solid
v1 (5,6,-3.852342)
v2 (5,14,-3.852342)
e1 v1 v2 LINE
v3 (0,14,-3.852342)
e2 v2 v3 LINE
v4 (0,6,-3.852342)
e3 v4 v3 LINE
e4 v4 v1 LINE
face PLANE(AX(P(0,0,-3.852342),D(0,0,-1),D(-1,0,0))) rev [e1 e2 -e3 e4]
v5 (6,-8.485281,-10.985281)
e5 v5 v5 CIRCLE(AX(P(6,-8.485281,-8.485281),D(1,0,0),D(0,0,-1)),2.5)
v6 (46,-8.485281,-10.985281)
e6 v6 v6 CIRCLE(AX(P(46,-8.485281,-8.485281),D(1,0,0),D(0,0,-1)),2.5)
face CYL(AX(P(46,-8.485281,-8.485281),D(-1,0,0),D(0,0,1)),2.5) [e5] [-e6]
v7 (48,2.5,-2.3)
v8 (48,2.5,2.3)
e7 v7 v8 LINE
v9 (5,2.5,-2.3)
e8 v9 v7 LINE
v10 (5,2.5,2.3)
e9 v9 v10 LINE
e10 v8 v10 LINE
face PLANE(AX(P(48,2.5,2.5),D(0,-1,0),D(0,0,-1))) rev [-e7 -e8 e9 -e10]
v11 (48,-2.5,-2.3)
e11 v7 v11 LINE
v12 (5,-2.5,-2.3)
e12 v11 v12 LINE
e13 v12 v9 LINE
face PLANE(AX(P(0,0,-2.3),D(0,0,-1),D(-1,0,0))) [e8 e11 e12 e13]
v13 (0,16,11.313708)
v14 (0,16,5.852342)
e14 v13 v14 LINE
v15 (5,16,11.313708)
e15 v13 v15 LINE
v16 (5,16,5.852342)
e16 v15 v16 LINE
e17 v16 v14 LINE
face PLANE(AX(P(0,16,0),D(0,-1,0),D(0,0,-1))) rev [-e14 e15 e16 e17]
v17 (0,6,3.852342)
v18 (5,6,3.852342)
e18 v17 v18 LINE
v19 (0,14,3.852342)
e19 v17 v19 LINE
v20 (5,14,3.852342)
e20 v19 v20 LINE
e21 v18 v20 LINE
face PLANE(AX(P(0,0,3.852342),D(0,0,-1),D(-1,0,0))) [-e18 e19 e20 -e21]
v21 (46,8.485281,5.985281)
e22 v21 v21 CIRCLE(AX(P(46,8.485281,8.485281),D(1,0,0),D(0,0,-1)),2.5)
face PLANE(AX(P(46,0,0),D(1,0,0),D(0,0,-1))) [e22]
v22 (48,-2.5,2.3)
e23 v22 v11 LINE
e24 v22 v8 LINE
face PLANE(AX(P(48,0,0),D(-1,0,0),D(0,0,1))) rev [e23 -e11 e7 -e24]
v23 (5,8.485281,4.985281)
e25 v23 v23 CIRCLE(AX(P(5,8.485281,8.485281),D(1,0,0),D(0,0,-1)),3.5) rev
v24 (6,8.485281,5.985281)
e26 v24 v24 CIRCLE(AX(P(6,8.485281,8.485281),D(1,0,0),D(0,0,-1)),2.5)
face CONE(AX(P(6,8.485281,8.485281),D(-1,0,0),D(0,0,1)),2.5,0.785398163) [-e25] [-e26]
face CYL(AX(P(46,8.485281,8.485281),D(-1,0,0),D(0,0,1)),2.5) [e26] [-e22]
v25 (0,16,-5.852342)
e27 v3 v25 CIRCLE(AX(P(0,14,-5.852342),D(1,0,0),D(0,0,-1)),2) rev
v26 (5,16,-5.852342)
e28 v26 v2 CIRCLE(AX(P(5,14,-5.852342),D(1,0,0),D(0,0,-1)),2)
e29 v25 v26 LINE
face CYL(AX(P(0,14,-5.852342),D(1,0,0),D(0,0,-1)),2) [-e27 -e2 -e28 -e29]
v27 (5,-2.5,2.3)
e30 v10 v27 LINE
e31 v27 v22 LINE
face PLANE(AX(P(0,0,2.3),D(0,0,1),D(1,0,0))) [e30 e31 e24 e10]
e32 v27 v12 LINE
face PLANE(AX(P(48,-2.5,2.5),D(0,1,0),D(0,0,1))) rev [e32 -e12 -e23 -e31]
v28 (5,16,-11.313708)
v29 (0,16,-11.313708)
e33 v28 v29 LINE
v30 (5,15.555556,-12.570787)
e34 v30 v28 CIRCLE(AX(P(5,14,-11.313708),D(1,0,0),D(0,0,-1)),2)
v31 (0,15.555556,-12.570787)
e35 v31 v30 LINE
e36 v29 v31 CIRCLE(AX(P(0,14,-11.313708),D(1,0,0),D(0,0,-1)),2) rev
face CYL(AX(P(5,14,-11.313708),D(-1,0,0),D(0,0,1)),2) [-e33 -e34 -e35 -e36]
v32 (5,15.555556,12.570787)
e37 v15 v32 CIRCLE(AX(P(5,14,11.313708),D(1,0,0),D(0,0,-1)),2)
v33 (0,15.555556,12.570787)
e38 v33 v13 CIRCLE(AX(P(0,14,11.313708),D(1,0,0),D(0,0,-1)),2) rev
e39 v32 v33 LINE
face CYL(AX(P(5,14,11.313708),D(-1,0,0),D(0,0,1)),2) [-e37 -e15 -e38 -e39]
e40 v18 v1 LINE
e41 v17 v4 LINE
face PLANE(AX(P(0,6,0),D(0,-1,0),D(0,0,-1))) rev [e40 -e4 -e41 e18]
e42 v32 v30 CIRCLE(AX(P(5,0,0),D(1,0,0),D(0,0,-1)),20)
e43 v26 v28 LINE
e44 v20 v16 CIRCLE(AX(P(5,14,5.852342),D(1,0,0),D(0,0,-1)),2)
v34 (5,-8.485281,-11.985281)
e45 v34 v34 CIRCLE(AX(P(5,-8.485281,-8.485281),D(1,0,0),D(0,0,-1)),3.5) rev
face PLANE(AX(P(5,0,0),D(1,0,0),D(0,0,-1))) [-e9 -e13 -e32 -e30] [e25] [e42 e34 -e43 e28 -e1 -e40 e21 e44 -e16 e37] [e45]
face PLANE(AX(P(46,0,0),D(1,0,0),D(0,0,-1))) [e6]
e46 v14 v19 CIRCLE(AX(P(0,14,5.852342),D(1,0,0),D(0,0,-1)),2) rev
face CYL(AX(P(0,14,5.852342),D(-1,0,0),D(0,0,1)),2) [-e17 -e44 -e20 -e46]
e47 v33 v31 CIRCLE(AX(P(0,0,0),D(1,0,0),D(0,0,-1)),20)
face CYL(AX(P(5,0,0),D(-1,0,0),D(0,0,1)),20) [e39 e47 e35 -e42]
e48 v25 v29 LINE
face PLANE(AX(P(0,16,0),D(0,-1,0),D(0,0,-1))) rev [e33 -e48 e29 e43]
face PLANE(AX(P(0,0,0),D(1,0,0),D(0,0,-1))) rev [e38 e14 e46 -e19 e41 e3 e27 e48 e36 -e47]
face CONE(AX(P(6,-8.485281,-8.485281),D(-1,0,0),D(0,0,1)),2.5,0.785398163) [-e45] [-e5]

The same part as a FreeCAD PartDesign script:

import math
import FreeCAD as App
import Part
import Sketcher
from FreeCAD import Vector
Q = App.Units.Quantity


def edges_at(feature, points):
    """Names of the edges that pass closest to the given points."""
    edges = feature.Shape.Edges
    near = lambda p: min(range(len(edges)), key=lambda i: edges[i].distToShape(Part.Vertex(*p))[0])
    return sorted({f"Edge{near(p) + 1}" for p in points})


def add_polygon(sketch, points):
    """Adds a closed chain of lines whose ends are joined by coincident constraints."""
    first, n = sketch.GeometryCount, len(points)
    for a, b in zip(points, points[1:] + points[:1]):
        sketch.addGeometry(Part.LineSegment(App.Vector(*a, 0), App.Vector(*b, 0)), False)
    for i in range(n):
        sketch.addConstraint(Sketcher.Constraint("Coincident", first + i, 2, first + (i + 1) % n, 1))

doc = App.newDocument("Part")
params = doc.addObject("Spreadsheet::Sheet", "Params")
for row, (alias, value) in enumerate([
    ("sketch1_diameter", "40 mm"),
    ("pad1_length", "5 mm"),
    ("sketch2_width", "5 mm"),
    ("pad2_length", "43 mm"),
    ("sketch3_diameter", "5 mm"),
    ("pad3_length", "41 mm"),
    ("sketch4_radius", "20 mm"),
    ("sketch4_width", "10 mm"),
    ("fillet_radius", "2 mm"),
    ("chamfer_size", "1 mm"),
    ("sketch5_width", "43 mm"),
    ("sketch5_height", "5 mm"),
    ("pocket2_length", "0.2 mm"),
    ("sketch6_width", "43 mm"),
    ("sketch6_height", "5 mm"),
    ("pocket3_length", "0.2 mm"),
], start=1):
    params.set(f"A{row}", alias)
    params.set(f"B{row}", "=" + value)
    params.setAlias(f"B{row}", alias)

body = doc.addObject("PartDesign::Body", "Body")

# Sketch on YZ plane
sketch1 = body.newObject("Sketcher::SketchObject", "Sketch")
sketch1.AttachmentSupport = (doc.getObject("YZ_Plane"), [""])
sketch1.MapMode = "FlatFace"
sketch1.addGeometry(Part.Circle(Vector(0, 0, 0), Vector(0, 0, 1), 20), False)
sketch1.addConstraint([
    Sketcher.Constraint("Coincident", 0, 3, -1, 1),
    Sketcher.Constraint("Diameter", 0, Q("40 mm")),
])
sketch1.setExpression("Constraints[1]", "Params.sketch1_diameter")
pad1 = body.newObject("PartDesign::Pad", "Pad")
pad1.Profile = sketch1
pad1.setExpression("Length", "Params.pad1_length")

# Sketch on YZ plane
sketch2 = body.newObject("Sketcher::SketchObject", "Sketch001")
sketch2.AttachmentSupport = (doc.getObject("YZ_Plane"), [""])
sketch2.MapMode = "FlatFace"
sketch2.AttachmentOffset = App.Placement(Vector(0, 0, 5), App.Rotation())
add_polygon(sketch2, [(2, 2), (-2, 2), (-2, -2), (2, -2)])  # lines 0-3
sketch2.addConstraint([
    Sketcher.Constraint("Horizontal", 0),
    Sketcher.Constraint("Vertical", 1),
    Sketcher.Constraint("Horizontal", 2),
    Sketcher.Constraint("Vertical", 3),
    Sketcher.Constraint("Symmetric", 0, 2, 2, 2, -1, 1),
    Sketcher.Constraint("Equal", 2, 1),
    Sketcher.Constraint("DistanceX", 0, 2, 0, 1, Q("5 mm")),
])
sketch2.setExpression("Constraints[10]", "Params.sketch2_width")
pad2 = body.newObject("PartDesign::Pad", "Pad001")
pad2.Profile = sketch2
pad2.setExpression("Length", "Params.pad2_length")

# Sketch on YZ plane
sketch3 = body.newObject("Sketcher::SketchObject", "Sketch002")
sketch3.AttachmentSupport = (doc.getObject("YZ_Plane"), [""])
sketch3.MapMode = "FlatFace"
sketch3.AttachmentOffset = App.Placement(Vector(0, 0, 5), App.Rotation())
sketch3.addGeometry([
    Part.Circle(Vector(8.5, 8.5, 0), Vector(0, 0, 1), 2.5),
    Part.Circle(Vector(-8.5, -8.5, 0), Vector(0, 0, 1), 2.5),
], False)
sketch3.addConstraint([
    Sketcher.Constraint("Equal", 0, 1),
    Sketcher.Constraint("Symmetric", 0, 3, 1, 3, -1, 1),
    Sketcher.Constraint("Diameter", 0, Q("5 mm")),
    Sketcher.Constraint("DistanceX", -1, 1, 0, 3, Q("8.485281 mm")),
    Sketcher.Constraint("DistanceY", -1, 1, 0, 3, Q("8.485281 mm")),
])
sketch3.setExpression("Constraints[2]", "Params.sketch3_diameter")
pad3 = body.newObject("PartDesign::Pad", "Pad002")
pad3.Profile = sketch3
pad3.setExpression("Length", "Params.pad3_length")

# Sketch on YZ plane
sketch4 = body.newObject("Sketcher::SketchObject", "Sketch003")
sketch4.AttachmentSupport = (doc.getObject("YZ_Plane"), [""])
sketch4.MapMode = "FlatFace"
sketch4.AttachmentOffset = App.Placement(Vector(0, 0, 5), App.Rotation())
sketch4.addGeometry([
    Part.LineSegment(Vector(16, 12, 0), Vector(16, 3.9, 0)),  # 0
    Part.LineSegment(Vector(16, 3.9, 0), Vector(6, 3.9, 0)),  # 1
    Part.LineSegment(Vector(6, 3.9, 0), Vector(6, -3.9, 0)),  # 2
    Part.LineSegment(Vector(6, -3.9, 0), Vector(16, -3.9, 0)),  # 3
    Part.LineSegment(Vector(16, -3.9, 0), Vector(16, -12, 0)),  # 4
    Part.ArcOfCircle(Part.Circle(Vector(0, 0, 0), Vector(0, 0, 1), 20), math.radians(-37), math.radians(-11)),  # 5
    Part.ArcOfCircle(Part.Circle(Vector(0, 0, 0), Vector(0, 0, 1), 20), math.radians(-11.11), math.radians(0)),  # 6
    Part.ArcOfCircle(Part.Circle(Vector(0, 0, 0), Vector(0, 0, 1), 20), math.radians(0), math.radians(11.11)),  # 7
    Part.ArcOfCircle(Part.Circle(Vector(0, 0, 0), Vector(0, 0, 1), 20), math.radians(11), math.radians(37)),  # 8
], False)
sketch4.addConstraint([
    Sketcher.Constraint("Coincident", 0, 2, 1, 1),
    Sketcher.Constraint("Coincident", 1, 2, 2, 1),
    Sketcher.Constraint("Coincident", 2, 2, 3, 1),
    Sketcher.Constraint("Coincident", 3, 2, 4, 1),
    Sketcher.Constraint("Coincident", 4, 2, 5, 1),
    Sketcher.Constraint("Tangent", 5, 2, 6, 1),
    Sketcher.Constraint("Tangent", 6, 2, 7, 1),
    Sketcher.Constraint("Tangent", 7, 2, 8, 1),
    Sketcher.Constraint("Coincident", 8, 2, 0, 1),
    Sketcher.Constraint("Vertical", 0),
    Sketcher.Constraint("Horizontal", 1),
    Sketcher.Constraint("Vertical", 2),
    Sketcher.Constraint("Horizontal", 3),
    Sketcher.Constraint("Vertical", 4),
    Sketcher.Constraint("Coincident", 5, 3, -1, 1),
    Sketcher.Constraint("Coincident", 7, 3, -1, 1),
    Sketcher.Constraint("Equal", 7, 8),
    Sketcher.Constraint("Symmetric", 0, 2, 3, 2, -1),
    Sketcher.Constraint("PointOnObject", 6, 2, -1),
    Sketcher.Constraint("Horizontal", 3, 2, 5, 2),
    Sketcher.Constraint("Horizontal", 1, 2, 7, 2),
    Sketcher.Constraint("Radius", 5, Q("20 mm")),
    Sketcher.Constraint("DistanceX", 1, 2, 1, 1, Q("10 mm")),
    Sketcher.Constraint("DistanceX", -1, 1, 0, 2, Q("16 mm")),
    Sketcher.Constraint("DistanceY", 0, 2, 0, 1, Q("8.147658 mm")),
])
sketch4.setExpression("Constraints[21]", "Params.sketch4_radius")
sketch4.setExpression("Constraints[22]", "Params.sketch4_width")
pocket1 = body.newObject("PartDesign::Pocket", "Pocket")
pocket1.Profile = sketch4
pocket1.Type = "ThroughAll"
doc.recompute()

fillet = body.newObject("PartDesign::Fillet", "Fillet")
fillet.Base = (pocket1, edges_at(pocket1, [
    (2.5, 16, 12),
    (2.5, 16, -12),
    (2.5, 16, -3.852),
    (2.5, 16, 3.852),
]))
fillet.setExpression("Radius", "Params.fillet_radius")
doc.recompute()

chamfer = body.newObject("PartDesign::Chamfer", "Chamfer")
chamfer.Base = (fillet, edges_at(fillet, [(5, 8.485, 10.985), (5, -8.485, -5.985)]))
chamfer.setExpression("Size", "Params.chamfer_size")

# Sketch on XY plane
sketch5 = body.newObject("Sketcher::SketchObject", "Sketch004")
sketch5.AttachmentSupport = (doc.getObject("XY_Plane"), [""])
sketch5.MapMode = "FlatFace"
sketch5.AttachmentOffset = App.Placement(Vector(0, 0, -2.5), App.Rotation())
add_polygon(sketch5, [(48, 2), (48, -2), (5, -2), (5, 2)])  # lines 0-3
sketch5.addConstraint([
    Sketcher.Constraint("Vertical", 0),
    Sketcher.Constraint("Horizontal", 1),
    Sketcher.Constraint("Vertical", 2),
    Sketcher.Constraint("Horizontal", 3),
    Sketcher.Constraint("DistanceX", 1, 2, 1, 1, Q("43 mm")),
    Sketcher.Constraint("DistanceY", 0, 2, 0, 1, Q("5 mm")),
    Sketcher.Constraint("DistanceX", -1, 1, 0, 2, Q("48 mm")),
    Sketcher.Constraint("DistanceY", 0, 2, -1, 1, Q("2.5 mm")),
])
sketch5.setExpression("Constraints[8]", "Params.sketch5_width")
sketch5.setExpression("Constraints[9]", "Params.sketch5_height")
pocket2 = body.newObject("PartDesign::Pocket", "Pocket001")
pocket2.Profile = sketch5
pocket2.setExpression("Length", "Params.pocket2_length")
pocket2.Reversed = True

# Sketch on XY plane
sketch6 = body.newObject("Sketcher::SketchObject", "Sketch005")
sketch6.AttachmentSupport = (doc.getObject("XY_Plane"), [""])
sketch6.MapMode = "FlatFace"
sketch6.AttachmentOffset = App.Placement(Vector(0, 0, 2.5), App.Rotation())
add_polygon(sketch6, [(5, 2), (5, -2), (48, -2), (48, 2)])  # lines 0-3
sketch6.addConstraint([
    Sketcher.Constraint("Vertical", 0),
    Sketcher.Constraint("Horizontal", 1),
    Sketcher.Constraint("Vertical", 2),
    Sketcher.Constraint("Horizontal", 3),
    Sketcher.Constraint("DistanceX", 1, 1, 1, 2, Q("43 mm")),
    Sketcher.Constraint("DistanceY", 0, 2, 0, 1, Q("5 mm")),
    Sketcher.Constraint("DistanceX", -1, 1, 0, 2, Q("5 mm")),
    Sketcher.Constraint("DistanceY", 0, 2, -1, 1, Q("2.5 mm")),
])
sketch6.setExpression("Constraints[8]", "Params.sketch6_width")
sketch6.setExpression("Constraints[9]", "Params.sketch6_height")
pocket3 = body.newObject("PartDesign::Pocket", "Pocket002")
pocket3.Profile = sketch6
pocket3.setExpression("Length", "Params.pocket3_length")

doc.recompute()
